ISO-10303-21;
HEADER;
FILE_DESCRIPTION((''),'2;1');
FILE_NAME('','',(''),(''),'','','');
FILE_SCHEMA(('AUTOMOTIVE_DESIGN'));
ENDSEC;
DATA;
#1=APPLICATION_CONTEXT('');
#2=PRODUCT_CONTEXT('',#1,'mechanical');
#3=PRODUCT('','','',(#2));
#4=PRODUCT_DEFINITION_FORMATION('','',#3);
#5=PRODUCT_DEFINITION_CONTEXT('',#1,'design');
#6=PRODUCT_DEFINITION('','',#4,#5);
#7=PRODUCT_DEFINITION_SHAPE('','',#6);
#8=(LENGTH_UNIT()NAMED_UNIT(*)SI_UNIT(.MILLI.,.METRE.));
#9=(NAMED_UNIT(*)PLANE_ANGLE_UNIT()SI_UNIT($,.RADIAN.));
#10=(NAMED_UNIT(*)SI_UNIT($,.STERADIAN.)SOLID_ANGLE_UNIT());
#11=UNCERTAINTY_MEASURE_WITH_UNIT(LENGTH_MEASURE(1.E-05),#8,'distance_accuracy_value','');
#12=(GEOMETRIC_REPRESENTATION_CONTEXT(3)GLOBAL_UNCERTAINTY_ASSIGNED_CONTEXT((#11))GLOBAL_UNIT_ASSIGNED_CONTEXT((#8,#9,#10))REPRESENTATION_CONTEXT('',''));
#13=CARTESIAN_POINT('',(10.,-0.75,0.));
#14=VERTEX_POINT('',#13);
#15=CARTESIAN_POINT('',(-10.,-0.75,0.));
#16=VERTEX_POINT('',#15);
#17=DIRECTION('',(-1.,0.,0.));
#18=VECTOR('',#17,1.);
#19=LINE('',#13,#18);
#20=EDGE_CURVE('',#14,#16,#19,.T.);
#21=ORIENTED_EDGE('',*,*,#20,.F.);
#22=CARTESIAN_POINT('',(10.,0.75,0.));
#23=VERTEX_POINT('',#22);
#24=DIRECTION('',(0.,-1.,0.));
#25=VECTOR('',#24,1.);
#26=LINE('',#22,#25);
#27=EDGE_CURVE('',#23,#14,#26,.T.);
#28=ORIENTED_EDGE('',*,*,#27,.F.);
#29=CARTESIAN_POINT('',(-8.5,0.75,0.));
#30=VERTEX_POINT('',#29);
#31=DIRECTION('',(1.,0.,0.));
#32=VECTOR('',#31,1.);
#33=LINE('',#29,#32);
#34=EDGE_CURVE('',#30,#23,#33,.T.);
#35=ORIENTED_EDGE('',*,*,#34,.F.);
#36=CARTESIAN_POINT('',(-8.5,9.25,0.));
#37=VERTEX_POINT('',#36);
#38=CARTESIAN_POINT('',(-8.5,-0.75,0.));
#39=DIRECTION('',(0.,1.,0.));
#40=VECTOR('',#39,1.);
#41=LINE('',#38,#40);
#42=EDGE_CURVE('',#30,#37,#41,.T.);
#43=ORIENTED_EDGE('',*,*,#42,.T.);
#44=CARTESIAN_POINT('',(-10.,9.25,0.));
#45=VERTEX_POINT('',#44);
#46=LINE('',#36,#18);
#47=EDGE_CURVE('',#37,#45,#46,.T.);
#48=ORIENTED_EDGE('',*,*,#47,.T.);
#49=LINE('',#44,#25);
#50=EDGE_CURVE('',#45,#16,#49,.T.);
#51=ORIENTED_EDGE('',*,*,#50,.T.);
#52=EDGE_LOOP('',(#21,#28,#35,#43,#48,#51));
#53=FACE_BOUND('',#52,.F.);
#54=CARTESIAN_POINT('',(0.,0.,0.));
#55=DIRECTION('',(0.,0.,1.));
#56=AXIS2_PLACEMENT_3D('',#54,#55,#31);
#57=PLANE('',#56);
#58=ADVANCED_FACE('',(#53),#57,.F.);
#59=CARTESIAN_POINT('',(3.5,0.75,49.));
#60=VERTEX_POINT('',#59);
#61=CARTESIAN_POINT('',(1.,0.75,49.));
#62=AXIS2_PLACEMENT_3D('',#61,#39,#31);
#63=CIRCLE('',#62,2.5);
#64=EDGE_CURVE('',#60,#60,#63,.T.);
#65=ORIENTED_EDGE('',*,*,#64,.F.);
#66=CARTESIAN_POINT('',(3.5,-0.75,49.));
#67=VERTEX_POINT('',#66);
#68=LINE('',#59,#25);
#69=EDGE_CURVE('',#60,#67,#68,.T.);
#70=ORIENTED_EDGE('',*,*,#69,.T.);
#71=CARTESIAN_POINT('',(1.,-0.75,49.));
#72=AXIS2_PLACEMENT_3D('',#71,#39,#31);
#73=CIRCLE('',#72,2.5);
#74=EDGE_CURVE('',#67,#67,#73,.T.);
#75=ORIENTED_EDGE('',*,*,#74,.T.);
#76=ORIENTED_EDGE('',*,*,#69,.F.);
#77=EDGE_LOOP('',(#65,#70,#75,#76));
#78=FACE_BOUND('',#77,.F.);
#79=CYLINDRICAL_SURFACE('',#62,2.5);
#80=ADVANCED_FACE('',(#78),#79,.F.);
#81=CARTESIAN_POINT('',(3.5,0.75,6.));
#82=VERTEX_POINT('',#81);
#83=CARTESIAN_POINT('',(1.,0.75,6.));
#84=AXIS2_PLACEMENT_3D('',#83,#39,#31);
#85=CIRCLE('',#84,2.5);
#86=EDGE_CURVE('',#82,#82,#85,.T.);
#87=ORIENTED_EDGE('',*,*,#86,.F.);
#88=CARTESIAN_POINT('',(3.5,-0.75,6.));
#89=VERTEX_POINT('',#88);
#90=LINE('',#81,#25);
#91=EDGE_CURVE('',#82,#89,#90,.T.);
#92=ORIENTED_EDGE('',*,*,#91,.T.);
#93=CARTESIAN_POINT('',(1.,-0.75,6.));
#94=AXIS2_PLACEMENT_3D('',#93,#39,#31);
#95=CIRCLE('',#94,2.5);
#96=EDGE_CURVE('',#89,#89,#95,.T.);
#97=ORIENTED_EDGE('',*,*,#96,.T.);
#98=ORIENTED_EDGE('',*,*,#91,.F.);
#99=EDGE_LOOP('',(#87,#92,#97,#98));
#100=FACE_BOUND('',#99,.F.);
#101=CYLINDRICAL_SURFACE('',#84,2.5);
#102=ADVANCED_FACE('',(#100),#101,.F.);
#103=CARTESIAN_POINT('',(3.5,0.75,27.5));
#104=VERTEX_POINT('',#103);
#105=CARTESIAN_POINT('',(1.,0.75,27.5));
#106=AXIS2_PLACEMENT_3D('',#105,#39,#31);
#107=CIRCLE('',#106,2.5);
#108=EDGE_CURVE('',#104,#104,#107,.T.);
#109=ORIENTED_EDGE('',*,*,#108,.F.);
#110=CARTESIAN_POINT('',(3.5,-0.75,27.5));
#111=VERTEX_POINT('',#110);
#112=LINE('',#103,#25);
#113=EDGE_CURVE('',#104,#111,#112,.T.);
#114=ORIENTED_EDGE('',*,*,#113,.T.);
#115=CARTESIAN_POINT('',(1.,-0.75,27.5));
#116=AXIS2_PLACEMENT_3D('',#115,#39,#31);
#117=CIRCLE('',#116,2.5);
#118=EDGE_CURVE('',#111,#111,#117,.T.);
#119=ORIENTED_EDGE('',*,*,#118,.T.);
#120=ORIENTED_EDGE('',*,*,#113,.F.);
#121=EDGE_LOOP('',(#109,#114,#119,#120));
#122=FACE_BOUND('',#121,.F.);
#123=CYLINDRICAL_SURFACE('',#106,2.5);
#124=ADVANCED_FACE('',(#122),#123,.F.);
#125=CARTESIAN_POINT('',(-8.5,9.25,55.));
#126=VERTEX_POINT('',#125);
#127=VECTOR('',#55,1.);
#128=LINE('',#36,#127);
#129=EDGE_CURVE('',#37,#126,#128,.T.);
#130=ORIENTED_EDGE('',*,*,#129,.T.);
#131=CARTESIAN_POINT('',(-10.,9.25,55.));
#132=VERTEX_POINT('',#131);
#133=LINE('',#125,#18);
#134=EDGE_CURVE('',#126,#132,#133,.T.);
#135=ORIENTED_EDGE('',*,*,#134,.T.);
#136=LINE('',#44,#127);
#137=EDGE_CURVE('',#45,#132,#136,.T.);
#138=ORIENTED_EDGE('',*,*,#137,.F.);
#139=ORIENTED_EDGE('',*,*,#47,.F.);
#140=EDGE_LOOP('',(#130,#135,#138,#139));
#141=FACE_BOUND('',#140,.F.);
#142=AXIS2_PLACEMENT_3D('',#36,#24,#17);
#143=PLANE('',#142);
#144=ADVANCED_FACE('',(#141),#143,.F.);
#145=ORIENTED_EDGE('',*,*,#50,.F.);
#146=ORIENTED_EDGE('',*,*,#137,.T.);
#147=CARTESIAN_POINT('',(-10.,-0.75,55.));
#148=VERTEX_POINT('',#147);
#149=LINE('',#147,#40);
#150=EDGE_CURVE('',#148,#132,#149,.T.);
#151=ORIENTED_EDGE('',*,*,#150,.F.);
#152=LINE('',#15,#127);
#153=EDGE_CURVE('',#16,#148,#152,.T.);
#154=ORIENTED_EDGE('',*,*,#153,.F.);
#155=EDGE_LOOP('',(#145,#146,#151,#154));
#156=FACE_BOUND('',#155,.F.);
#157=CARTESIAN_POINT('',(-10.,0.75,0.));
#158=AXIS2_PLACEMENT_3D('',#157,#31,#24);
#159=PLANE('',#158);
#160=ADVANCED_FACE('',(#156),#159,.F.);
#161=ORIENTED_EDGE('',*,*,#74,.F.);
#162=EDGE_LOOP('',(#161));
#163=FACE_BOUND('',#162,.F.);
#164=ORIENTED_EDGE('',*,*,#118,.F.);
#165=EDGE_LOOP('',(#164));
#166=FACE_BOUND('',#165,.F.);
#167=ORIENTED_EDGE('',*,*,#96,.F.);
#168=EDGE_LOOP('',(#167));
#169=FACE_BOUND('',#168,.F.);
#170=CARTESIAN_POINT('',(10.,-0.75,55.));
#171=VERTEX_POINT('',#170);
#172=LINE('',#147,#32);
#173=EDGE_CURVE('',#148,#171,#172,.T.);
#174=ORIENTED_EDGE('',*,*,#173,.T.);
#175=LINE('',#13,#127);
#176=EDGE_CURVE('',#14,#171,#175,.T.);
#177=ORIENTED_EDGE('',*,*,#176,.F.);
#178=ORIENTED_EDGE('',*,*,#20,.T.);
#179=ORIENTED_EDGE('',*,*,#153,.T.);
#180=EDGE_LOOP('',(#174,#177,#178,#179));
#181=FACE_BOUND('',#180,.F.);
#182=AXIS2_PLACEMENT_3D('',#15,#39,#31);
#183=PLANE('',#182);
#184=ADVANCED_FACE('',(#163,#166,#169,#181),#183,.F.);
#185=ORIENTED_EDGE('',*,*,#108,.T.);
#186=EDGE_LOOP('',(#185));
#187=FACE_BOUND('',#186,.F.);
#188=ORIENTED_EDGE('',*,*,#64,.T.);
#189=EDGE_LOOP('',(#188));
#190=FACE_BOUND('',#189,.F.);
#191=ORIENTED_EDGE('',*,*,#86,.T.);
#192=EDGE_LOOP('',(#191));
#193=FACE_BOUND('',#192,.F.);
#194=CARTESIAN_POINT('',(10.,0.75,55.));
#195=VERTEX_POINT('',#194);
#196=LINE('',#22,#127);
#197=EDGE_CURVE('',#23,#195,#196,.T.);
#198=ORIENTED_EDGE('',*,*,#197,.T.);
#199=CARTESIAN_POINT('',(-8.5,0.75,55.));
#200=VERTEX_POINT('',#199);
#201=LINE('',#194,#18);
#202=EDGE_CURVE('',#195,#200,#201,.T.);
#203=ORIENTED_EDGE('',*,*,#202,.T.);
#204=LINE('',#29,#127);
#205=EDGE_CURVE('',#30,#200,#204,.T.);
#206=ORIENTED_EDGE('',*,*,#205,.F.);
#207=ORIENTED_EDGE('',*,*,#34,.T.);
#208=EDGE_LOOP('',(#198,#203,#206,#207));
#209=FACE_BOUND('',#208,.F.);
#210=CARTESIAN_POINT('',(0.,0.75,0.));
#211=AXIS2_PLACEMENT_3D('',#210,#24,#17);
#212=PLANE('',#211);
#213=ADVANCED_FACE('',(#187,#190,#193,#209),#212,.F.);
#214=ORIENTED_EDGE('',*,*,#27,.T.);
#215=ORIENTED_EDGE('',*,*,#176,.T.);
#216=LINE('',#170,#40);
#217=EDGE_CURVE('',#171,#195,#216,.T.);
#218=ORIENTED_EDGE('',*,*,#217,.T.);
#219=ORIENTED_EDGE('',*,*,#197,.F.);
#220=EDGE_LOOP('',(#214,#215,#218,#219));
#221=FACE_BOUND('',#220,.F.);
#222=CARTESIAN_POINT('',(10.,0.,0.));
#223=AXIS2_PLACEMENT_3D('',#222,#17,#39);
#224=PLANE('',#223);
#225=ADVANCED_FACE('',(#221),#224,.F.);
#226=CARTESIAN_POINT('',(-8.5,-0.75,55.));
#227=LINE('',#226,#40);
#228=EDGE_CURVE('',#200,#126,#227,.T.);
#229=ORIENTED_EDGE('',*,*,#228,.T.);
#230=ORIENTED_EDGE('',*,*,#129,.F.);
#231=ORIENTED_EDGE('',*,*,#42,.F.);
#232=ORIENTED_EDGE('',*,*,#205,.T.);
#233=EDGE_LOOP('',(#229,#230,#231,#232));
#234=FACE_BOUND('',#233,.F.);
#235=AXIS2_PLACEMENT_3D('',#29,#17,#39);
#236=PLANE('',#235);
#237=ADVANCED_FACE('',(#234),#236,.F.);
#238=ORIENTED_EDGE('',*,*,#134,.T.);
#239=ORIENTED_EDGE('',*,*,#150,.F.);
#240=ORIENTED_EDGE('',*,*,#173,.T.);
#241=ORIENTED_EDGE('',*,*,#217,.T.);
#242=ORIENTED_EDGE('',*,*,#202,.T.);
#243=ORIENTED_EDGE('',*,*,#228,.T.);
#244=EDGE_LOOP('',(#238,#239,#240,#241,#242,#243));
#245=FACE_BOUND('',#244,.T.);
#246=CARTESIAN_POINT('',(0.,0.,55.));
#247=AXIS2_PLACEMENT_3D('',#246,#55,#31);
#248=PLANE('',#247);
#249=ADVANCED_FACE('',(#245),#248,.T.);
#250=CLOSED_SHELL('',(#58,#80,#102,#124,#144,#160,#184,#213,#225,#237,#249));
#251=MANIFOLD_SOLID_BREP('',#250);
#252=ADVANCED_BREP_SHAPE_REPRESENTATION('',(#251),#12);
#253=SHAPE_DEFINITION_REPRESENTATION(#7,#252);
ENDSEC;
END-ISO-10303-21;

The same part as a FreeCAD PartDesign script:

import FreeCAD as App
import Part
import Sketcher

doc = App.newDocument("Part")
params = doc.addObject("Spreadsheet::Sheet", "Params")
for row, (alias, value) in enumerate([
    ("sketch1_width", "20 mm"),
    ("sketch1_height", "10 mm"),
    ("sketch1_width2", "1.5 mm"),
    ("pad1_length", "55 mm"),
    ("sketch2_diameter", "5 mm"),
    ("pocket1_length", "1.5 mm"),
], start=1):
    params.set(f"A{row}", alias)
    params.set(f"B{row}", "=" + value)
    params.setAlias(f"B{row}", alias)

body = doc.addObject("PartDesign::Body", "Body")

# Sketch on XY plane
sketch1 = doc.addObject("Sketcher::SketchObject", "Sketch")
body.addObject(sketch1)
sketch1.AttachmentSupport = (doc.XY_Plane, [""])
sketch1.MapMode = "FlatFace"
sketch1.addGeometry([
    Part.LineSegment(App.Vector(-10, -0.75, 0), App.Vector(10, -0.75, 0)),  # 0
    Part.LineSegment(App.Vector(10, -0.75, 0), App.Vector(10, 0.75, 0)),  # 1
    Part.LineSegment(App.Vector(10, 0.75, 0), App.Vector(-8.5, 0.75, 0)),  # 2
    Part.LineSegment(App.Vector(-8.5, 0.75, 0), App.Vector(-8.5, 9.25, 0)),  # 3
    Part.LineSegment(App.Vector(-8.5, 9.25, 0), App.Vector(-10, 9.25, 0)),  # 4
    Part.LineSegment(App.Vector(-10, 9.25, 0), App.Vector(-10, -0.75, 0)),  # 5
], False)
sketch1.addConstraint([
    Sketcher.Constraint("Coincident", 0, 2, 1, 1),
    Sketcher.Constraint("Coincident", 1, 2, 2, 1),
    Sketcher.Constraint("Coincident", 2, 2, 3, 1),
    Sketcher.Constraint("Coincident", 3, 2, 4, 1),
    Sketcher.Constraint("Coincident", 4, 2, 5, 1),
    Sketcher.Constraint("Coincident", 5, 2, 0, 1),
    Sketcher.Constraint("Horizontal", 0),
    Sketcher.Constraint("Vertical", 1),
    Sketcher.Constraint("Horizontal", 2),
    Sketcher.Constraint("Vertical", 3),
    Sketcher.Constraint("Horizontal", 4),
    Sketcher.Constraint("Vertical", 5),
    Sketcher.Constraint("Symmetric", 1, 2, 5, 2, -1, 1),
    Sketcher.Constraint("Equal", 4, 1),
    Sketcher.Constraint("DistanceX", 0, 1, 0, 2, 20.0),
    Sketcher.Constraint("DistanceY", 5, 2, 5, 1, 10.0),
    Sketcher.Constraint("DistanceX", 4, 2, 4, 1, 1.5),
])
sketch1.setExpression("Constraints[14]", "Params.sketch1_width")
sketch1.setExpression("Constraints[15]", "Params.sketch1_height")
sketch1.setExpression("Constraints[16]", "Params.sketch1_width2")
pad1 = doc.addObject("PartDesign::Pad", "Pad")
body.addObject(pad1)
pad1.Profile = sketch1
pad1.setExpression("Length", "Params.pad1_length")

# Sketch on XZ plane
sketch2 = doc.addObject("Sketcher::SketchObject", "Sketch001")
body.addObject(sketch2)
sketch2.AttachmentSupport = (doc.XZ_Plane, [""])
sketch2.MapMode = "FlatFace"
sketch2.AttachmentOffset = App.Placement(App.Vector(0, 0, -0.75), App.Rotation())
sketch2.addGeometry([
    Part.Circle(App.Vector(1, 49, 0), App.Vector(0, 0, 1), 2.5),
    Part.Circle(App.Vector(1, 6, 0), App.Vector(0, 0, 1), 2.5),
    Part.Circle(App.Vector(1, 27.5, 0), App.Vector(0, 0, 1), 2.5),
], False)
sketch2.addConstraint([
    Sketcher.Constraint("Equal", 0, 1),
    Sketcher.Constraint("Equal", 1, 2),
    Sketcher.Constraint("Vertical", 0, 3, 1, 3),
    Sketcher.Constraint("Vertical", 1, 3, 2, 3),
    Sketcher.Constraint("Diameter", 0, 5.0),
    Sketcher.Constraint("DistanceY", -1, 1, 1, 3, 6.0),
    Sketcher.Constraint("DistanceY", -1, 1, 2, 3, 27.5),
    Sketcher.Constraint("DistanceX", -1, 1, 0, 3, 1.0),
    Sketcher.Constraint("DistanceY", -1, 1, 0, 3, 49.0),
])
sketch2.setExpression("Constraints[4]", "Params.sketch2_diameter")
pocket1 = doc.addObject("PartDesign::Pocket", "Pocket")
body.addObject(pocket1)
pocket1.Profile = sketch2
pocket1.setExpression("Length", "Params.pocket1_length")
pocket1.Reversed = True

doc.recompute()
